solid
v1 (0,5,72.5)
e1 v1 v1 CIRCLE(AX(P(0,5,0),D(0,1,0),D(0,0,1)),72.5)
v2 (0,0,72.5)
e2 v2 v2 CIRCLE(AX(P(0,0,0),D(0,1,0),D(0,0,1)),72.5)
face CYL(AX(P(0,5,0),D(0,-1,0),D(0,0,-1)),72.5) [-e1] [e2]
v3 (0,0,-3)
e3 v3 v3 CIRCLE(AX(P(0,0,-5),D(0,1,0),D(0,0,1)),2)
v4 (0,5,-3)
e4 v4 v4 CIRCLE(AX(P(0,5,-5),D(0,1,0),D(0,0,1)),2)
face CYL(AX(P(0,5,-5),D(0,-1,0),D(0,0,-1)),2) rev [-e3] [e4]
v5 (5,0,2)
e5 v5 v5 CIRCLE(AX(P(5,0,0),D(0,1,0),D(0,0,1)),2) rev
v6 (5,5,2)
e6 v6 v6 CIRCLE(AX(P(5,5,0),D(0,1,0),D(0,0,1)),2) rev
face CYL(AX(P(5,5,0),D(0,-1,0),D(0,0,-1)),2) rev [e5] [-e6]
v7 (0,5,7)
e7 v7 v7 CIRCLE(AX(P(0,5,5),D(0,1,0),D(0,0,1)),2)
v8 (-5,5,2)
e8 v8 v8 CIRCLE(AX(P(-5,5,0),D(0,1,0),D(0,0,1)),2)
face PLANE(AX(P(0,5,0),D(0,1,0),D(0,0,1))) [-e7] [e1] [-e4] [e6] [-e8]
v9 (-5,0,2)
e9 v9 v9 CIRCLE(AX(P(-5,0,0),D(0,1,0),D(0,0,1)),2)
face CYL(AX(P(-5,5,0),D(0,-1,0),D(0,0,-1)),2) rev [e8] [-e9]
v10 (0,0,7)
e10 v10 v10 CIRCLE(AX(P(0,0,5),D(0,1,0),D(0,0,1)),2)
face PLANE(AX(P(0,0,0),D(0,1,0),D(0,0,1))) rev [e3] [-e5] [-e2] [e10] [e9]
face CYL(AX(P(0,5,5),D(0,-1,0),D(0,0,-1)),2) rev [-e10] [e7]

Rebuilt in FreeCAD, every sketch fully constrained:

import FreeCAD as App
import Part
import Sketcher
from FreeCAD import Vector

doc = App.newDocument("Part")
params = doc.addObject("Spreadsheet::Sheet", "Params")
for row, (alias, value) in enumerate([
    ("sketch1_diameter", "145 mm"),
    ("sketch1_diameter2", "4 mm"),
    ("pad1_length", "5 mm"),
], start=1):
    params.set(f"A{row}", alias)
    params.set(f"B{row}", "=" + value)
    params.setAlias(f"B{row}", alias)

body = doc.addObject("PartDesign::Body", "Body")

# Sketch on XZ plane
sketch1 = body.newObject("Sketcher::SketchObject", "Sketch")
sketch1.AttachmentSupport = (doc.getObject("XZ_Plane"), [""])
sketch1.MapMode = "FlatFace"
sketch1.addGeometry([
    Part.Circle(Vector(0, 0, 0), Vector(0, 0, 1), 72.5),  # 0
    Part.Circle(Vector(0, -5, 0), Vector(0, 0, 1), 2),  # 1
    Part.Circle(Vector(-5, 0, 0), Vector(0, 0, 1), 2),  # 2
    Part.Circle(Vector(5, 0, 0), Vector(0, 0, 1), 2),  # 3
    Part.Circle(Vector(0, 5, 0), Vector(0, 0, 1), 2),  # 4
], False)
sketch1.addConstraint([
    Sketcher.Constraint("Coincident", 0, 3, -1, 1),
    Sketcher.Constraint("Equal", 1, 2),
    Sketcher.Constraint("Equal", 2, 3),
    Sketcher.Constraint("Equal", 3, 4),
    Sketcher.Constraint("Symmetric", 2, 3, 3, 3, -1, 1),
    Sketcher.Constraint("Symmetric", 1, 3, 4, 3, -1, 1),
    Sketcher.Constraint("PointOnObject", 1, 3, -2),
    Sketcher.Constraint("PointOnObject", 2, 3, -1),
    Sketcher.Constraint("Diameter", 0, 145.0),
    Sketcher.Constraint("Diameter", 1, 4.0),
    Sketcher.Constraint("DistanceY", 1, 3, -1, 1, 5.0),
    Sketcher.Constraint("DistanceX", 2, 3, -1, 1, 5.0),
])
sketch1.setExpression("Constraints[8]", "Params.sketch1_diameter")
sketch1.setExpression("Constraints[9]", "Params.sketch1_diameter2")
pad1 = body.newObject("PartDesign::Pad", "Pad")
pad1.Profile = sketch1
pad1.setExpression("Length", "Params.pad1_length")
pad1.Reversed = True

doc.recompute()
